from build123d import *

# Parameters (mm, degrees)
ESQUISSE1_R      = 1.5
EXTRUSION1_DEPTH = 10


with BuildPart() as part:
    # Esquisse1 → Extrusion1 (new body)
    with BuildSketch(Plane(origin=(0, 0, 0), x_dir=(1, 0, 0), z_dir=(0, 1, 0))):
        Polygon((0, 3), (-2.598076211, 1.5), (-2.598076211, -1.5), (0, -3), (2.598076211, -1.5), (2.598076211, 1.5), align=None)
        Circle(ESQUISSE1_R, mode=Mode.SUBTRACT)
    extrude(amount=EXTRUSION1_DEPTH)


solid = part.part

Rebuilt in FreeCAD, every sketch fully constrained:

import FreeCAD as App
import Part
import Sketcher
Q = App.Units.Quantity

doc = App.newDocument("Part")
body = doc.addObject("PartDesign::Body", "Body")

# Sketch on XZ plane
sketch1 = doc.addObject("Sketcher::SketchObject", "Sketch")
body.addObject(sketch1)
sketch1.AttachmentSupport = (doc.XZ_Plane, [""])
sketch1.MapMode = "FlatFace"
sketch1.addGeometry(Part.LineSegment(App.Vector(0, -3, 0), App.Vector(-2.598076, -1.5, 0)), False)
sketch1.addGeometry(Part.LineSegment(App.Vector(-2.598076, -1.5, 0), App.Vector(-2.598076, 1.5, 0)), False)
sketch1.addGeometry(Part.LineSegment(App.Vector(-2.598076, 1.5, 0), App.Vector(0, 3, 0)), False)
sketch1.addGeometry(Part.LineSegment(App.Vector(0, 3, 0), App.Vector(2.598076, 1.5, 0)), False)
sketch1.addGeometry(Part.LineSegment(App.Vector(2.598076, 1.5, 0), App.Vector(2.598076, -1.5, 0)), False)
sketch1.addGeometry(Part.LineSegment(App.Vector(2.598076, -1.5, 0), App.Vector(0, -3, 0)), False)
sketch1.addGeometry(Part.Circle(App.Vector(0, 0, 0), App.Vector(0, 0, 1), 1.5), False)
sketch1.addConstraint(Sketcher.Constraint("Coincident", 0, 2, 1, 1))
sketch1.addConstraint(Sketcher.Constraint("Coincident", 1, 2, 2, 1))
sketch1.addConstraint(Sketcher.Constraint("Coincident", 2, 2, 3, 1))
sketch1.addConstraint(Sketcher.Constraint("Coincident", 3, 2, 4, 1))
sketch1.addConstraint(Sketcher.Constraint("Coincident", 4, 2, 5, 1))
sketch1.addConstraint(Sketcher.Constraint("Coincident", 5, 2, 0, 1))
sketch1.addConstraint(Sketcher.Constraint("Vertical", 1))
sketch1.addConstraint(Sketcher.Constraint("Vertical", 4))
sketch1.addConstraint(Sketcher.Constraint("Coincident", 6, 3, -1, 1))
sketch1.addConstraint(Sketcher.Constraint("Symmetric", 0, 2, 3, 2, -1, 1))
sketch1.addConstraint(Sketcher.Constraint("Symmetric", 2, 2, 5, 2, -1, 1))
sketch1.addConstraint(Sketcher.Constraint("PointOnObject", 2, 2, -2))
sketch1.addConstraint(Sketcher.Constraint("Parallel", 2, 5))
sketch1.addConstraint(Sketcher.Constraint("Horizontal", 1, 2, 3, 2))
sketch1.addConstraint(Sketcher.Constraint("Diameter", 6, Q("3 mm")))
sketch1.addConstraint(Sketcher.Constraint("DistanceY", 1, 1, 1, 2, Q("3 mm")))
sketch1.addConstraint(Sketcher.Constraint("Angle", 0, Q("150 deg")))
sketch1.addConstraint(Sketcher.Constraint("Distance", 0, Q("3 mm")))
pad1 = doc.addObject("PartDesign::Pad", "Pad")
body.addObject(pad1)
pad1.Profile = sketch1
pad1.Length = 10
pad1.Reversed = True

doc.recompute()
